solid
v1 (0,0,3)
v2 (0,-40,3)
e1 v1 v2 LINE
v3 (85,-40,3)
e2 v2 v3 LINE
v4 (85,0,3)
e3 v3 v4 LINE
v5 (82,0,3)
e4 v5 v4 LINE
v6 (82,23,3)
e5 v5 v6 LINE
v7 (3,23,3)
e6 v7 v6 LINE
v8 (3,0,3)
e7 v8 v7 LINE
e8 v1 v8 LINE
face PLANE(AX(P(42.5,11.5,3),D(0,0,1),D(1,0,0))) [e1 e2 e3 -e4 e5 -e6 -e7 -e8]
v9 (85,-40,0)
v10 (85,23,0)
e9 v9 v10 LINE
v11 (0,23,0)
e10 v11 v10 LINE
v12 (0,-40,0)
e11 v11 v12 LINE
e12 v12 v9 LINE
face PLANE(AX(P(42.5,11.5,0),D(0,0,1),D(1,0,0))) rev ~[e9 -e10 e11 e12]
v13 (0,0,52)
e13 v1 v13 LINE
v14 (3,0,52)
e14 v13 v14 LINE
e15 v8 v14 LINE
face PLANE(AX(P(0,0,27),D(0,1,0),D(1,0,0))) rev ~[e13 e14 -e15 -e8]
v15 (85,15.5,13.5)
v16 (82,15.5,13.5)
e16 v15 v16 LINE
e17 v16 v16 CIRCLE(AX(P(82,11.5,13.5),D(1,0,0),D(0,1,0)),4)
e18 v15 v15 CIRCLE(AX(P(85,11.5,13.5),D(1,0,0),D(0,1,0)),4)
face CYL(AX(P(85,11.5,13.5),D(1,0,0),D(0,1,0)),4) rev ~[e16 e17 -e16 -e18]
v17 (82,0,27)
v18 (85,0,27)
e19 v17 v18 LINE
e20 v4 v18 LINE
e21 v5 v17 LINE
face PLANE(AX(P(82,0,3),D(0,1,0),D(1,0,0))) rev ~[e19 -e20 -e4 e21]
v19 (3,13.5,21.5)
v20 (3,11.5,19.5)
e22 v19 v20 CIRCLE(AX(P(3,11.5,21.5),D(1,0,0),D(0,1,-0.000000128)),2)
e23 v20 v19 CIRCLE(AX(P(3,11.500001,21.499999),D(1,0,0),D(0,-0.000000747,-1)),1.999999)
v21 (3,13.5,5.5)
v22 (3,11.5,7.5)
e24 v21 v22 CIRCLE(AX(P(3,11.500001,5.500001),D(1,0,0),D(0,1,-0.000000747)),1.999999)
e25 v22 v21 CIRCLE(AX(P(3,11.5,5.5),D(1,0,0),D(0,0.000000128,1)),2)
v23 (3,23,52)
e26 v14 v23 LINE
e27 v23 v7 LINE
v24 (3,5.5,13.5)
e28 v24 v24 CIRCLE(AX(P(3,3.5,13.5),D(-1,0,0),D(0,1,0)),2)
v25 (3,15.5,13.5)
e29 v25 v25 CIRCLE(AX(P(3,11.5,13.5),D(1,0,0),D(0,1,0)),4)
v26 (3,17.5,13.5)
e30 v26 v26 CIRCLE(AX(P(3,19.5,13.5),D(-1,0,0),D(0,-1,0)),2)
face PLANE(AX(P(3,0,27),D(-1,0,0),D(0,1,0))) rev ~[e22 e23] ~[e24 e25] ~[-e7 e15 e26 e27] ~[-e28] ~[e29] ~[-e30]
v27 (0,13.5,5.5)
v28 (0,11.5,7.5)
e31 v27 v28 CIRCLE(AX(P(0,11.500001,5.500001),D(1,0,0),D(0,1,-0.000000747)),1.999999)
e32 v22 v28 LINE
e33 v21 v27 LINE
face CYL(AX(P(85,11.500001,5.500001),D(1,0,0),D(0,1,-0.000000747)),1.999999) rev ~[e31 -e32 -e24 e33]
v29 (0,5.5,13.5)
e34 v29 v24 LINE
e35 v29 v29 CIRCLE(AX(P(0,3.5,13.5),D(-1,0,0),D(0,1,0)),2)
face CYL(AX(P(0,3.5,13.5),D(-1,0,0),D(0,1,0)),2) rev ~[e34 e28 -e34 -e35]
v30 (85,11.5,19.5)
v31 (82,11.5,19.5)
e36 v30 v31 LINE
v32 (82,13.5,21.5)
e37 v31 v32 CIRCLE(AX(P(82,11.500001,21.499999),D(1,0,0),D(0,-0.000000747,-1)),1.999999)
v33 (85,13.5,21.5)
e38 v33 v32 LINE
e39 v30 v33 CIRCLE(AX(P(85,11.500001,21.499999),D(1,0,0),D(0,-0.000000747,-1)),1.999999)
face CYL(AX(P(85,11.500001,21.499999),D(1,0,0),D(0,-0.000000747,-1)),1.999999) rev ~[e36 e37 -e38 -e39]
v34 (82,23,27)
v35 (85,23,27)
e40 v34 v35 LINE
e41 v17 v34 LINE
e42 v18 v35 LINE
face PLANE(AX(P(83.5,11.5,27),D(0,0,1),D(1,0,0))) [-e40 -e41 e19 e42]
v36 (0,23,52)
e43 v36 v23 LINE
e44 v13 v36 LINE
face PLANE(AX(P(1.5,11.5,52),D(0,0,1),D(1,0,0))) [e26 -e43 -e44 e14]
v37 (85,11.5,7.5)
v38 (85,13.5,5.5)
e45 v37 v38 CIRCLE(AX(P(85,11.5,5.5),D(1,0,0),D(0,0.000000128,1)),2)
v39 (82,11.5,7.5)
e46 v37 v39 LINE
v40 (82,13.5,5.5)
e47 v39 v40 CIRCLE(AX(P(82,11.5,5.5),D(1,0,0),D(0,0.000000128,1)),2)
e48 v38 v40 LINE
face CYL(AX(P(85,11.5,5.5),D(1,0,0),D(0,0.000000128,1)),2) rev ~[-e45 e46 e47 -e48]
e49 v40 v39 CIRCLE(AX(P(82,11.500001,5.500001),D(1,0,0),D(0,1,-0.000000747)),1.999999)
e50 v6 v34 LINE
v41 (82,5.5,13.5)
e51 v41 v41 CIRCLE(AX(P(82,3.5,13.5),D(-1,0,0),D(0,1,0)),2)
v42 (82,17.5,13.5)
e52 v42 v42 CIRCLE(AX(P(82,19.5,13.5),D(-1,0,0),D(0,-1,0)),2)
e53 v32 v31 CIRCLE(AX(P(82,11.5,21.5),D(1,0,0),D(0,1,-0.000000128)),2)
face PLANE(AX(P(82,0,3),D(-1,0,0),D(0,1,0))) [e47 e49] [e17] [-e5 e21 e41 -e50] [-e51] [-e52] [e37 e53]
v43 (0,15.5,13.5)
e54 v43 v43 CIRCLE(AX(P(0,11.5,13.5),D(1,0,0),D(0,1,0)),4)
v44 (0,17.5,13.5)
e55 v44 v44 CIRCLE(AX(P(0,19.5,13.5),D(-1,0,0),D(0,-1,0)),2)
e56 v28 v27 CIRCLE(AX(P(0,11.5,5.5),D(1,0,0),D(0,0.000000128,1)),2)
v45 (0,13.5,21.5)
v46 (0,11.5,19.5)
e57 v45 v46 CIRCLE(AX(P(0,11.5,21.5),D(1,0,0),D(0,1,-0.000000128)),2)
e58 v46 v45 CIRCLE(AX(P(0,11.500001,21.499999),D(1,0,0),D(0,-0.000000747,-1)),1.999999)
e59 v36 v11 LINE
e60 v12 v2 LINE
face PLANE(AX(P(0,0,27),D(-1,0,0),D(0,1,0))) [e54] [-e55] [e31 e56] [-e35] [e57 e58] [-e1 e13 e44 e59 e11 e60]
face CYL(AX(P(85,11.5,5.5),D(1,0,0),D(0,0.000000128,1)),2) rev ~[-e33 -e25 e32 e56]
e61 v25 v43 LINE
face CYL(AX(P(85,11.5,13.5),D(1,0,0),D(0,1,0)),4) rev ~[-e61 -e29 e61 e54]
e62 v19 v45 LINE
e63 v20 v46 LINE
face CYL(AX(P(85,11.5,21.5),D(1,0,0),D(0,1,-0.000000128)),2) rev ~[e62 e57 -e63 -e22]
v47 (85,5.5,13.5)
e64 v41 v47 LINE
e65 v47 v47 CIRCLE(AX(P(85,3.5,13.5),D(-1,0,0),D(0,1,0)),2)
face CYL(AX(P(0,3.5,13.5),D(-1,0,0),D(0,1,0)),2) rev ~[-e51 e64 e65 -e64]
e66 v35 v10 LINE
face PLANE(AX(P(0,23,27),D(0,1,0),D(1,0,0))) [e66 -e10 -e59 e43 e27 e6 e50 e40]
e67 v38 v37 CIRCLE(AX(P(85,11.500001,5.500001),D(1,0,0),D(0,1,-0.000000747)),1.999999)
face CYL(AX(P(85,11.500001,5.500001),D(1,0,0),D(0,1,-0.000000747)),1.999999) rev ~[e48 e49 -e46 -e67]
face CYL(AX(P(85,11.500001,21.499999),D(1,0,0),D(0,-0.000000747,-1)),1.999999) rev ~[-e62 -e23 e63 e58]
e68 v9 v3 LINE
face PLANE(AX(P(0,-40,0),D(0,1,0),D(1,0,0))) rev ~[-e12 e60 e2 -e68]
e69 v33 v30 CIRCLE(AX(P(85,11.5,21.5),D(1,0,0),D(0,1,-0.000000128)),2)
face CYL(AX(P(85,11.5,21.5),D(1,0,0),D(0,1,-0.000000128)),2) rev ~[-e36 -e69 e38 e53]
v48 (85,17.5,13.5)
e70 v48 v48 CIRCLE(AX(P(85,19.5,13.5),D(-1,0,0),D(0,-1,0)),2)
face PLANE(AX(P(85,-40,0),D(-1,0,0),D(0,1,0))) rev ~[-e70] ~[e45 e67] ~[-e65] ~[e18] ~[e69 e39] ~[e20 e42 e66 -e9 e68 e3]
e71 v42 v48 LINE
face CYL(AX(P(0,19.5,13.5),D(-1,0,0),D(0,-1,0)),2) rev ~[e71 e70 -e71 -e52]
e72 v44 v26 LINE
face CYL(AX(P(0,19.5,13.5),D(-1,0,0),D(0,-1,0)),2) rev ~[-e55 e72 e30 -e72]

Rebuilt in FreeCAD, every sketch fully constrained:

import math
import FreeCAD as App
import Part
import Sketcher
from FreeCAD import Vector
Q = App.Units.Quantity

doc = App.newDocument("Part")
body = doc.addObject("PartDesign::Body", "Body")

# Sketch on XY plane
sketch1 = body.newObject("Sketcher::SketchObject", "Sketch")
sketch1.AttachmentSupport = (doc.getObject("XY_Plane"), [""])
sketch1.MapMode = "FlatFace"
sketch1.addGeometry(Part.LineSegment(Vector(0, 23, 0), Vector(0, -40, 0)), False)
sketch1.addGeometry(Part.LineSegment(Vector(0, -40, 0), Vector(85, -40, 0)), False)
sketch1.addGeometry(Part.LineSegment(Vector(85, -40, 0), Vector(85, 23, 0)), False)
sketch1.addGeometry(Part.LineSegment(Vector(85, 23, 0), Vector(0, 23, 0)), False)
sketch1.addConstraint(Sketcher.Constraint("Coincident", 0, 2, 1, 1))
sketch1.addConstraint(Sketcher.Constraint("Coincident", 1, 2, 2, 1))
sketch1.addConstraint(Sketcher.Constraint("Coincident", 2, 2, 3, 1))
sketch1.addConstraint(Sketcher.Constraint("Coincident", 3, 2, 0, 1))
sketch1.addConstraint(Sketcher.Constraint("Vertical", 0))
sketch1.addConstraint(Sketcher.Constraint("Horizontal", 1))
sketch1.addConstraint(Sketcher.Constraint("Vertical", 2))
sketch1.addConstraint(Sketcher.Constraint("Horizontal", 3))
sketch1.addConstraint(Sketcher.Constraint("PointOnObject", 0, 2, -2))
sketch1.addConstraint(Sketcher.Constraint("DistanceX", 1, 1, 1, 2, Q("85 mm")))
sketch1.addConstraint(Sketcher.Constraint("DistanceY", 0, 2, 0, 1, Q("63 mm")))
sketch1.addConstraint(Sketcher.Constraint("DistanceY", 0, 2, -1, 1, Q("40 mm")))
pad1 = body.newObject("PartDesign::Pad", "Pad")
pad1.Profile = sketch1
pad1.Length = 3

# Sketch on XY plane
sketch2 = body.newObject("Sketcher::SketchObject", "Sketch001")
sketch2.AttachmentSupport = (doc.getObject("XY_Plane"), [""])
sketch2.MapMode = "FlatFace"
sketch2.AttachmentOffset = App.Placement(Vector(0, 0, 3), App.Rotation())
sketch2.addGeometry(Part.LineSegment(Vector(0, 23, 0), Vector(0, 0, 0)), False)
sketch2.addGeometry(Part.LineSegment(Vector(0, 0, 0), Vector(3, 0, 0)), False)
sketch2.addGeometry(Part.LineSegment(Vector(3, 0, 0), Vector(3, 23, 0)), False)
sketch2.addGeometry(Part.LineSegment(Vector(3, 23, 0), Vector(0, 23, 0)), False)
sketch2.addGeometry(Part.LineSegment(Vector(82, 23, 0), Vector(82, 0, 0)), False)
sketch2.addGeometry(Part.LineSegment(Vector(82, 0, 0), Vector(85, 0, 0)), False)
sketch2.addGeometry(Part.LineSegment(Vector(85, 0, 0), Vector(85, 23, 0)), False)
sketch2.addGeometry(Part.LineSegment(Vector(85, 23, 0), Vector(82, 23, 0)), False)
sketch2.addConstraint(Sketcher.Constraint("Coincident", 0, 2, 1, 1))
sketch2.addConstraint(Sketcher.Constraint("Coincident", 1, 2, 2, 1))
sketch2.addConstraint(Sketcher.Constraint("Coincident", 2, 2, 3, 1))
sketch2.addConstraint(Sketcher.Constraint("Coincident", 3, 2, 0, 1))
sketch2.addConstraint(Sketcher.Constraint("Coincident", 4, 2, 5, 1))
sketch2.addConstraint(Sketcher.Constraint("Coincident", 5, 2, 6, 1))
sketch2.addConstraint(Sketcher.Constraint("Coincident", 6, 2, 7, 1))
sketch2.addConstraint(Sketcher.Constraint("Coincident", 7, 2, 4, 1))
sketch2.addConstraint(Sketcher.Constraint("Vertical", 0))
sketch2.addConstraint(Sketcher.Constraint("Horizontal", 1))
sketch2.addConstraint(Sketcher.Constraint("Vertical", 2))
sketch2.addConstraint(Sketcher.Constraint("Horizontal", 3))
sketch2.addConstraint(Sketcher.Constraint("Vertical", 4))
sketch2.addConstraint(Sketcher.Constraint("Horizontal", 5))
sketch2.addConstraint(Sketcher.Constraint("Vertical", 6))
sketch2.addConstraint(Sketcher.Constraint("Horizontal", 7))
sketch2.addConstraint(Sketcher.Constraint("Coincident", 0, 2, -1, 1))
sketch2.addConstraint(Sketcher.Constraint("PointOnObject", 4, 2, -1))
sketch2.addConstraint(Sketcher.Constraint("Horizontal", 3, 2, 6, 2))
sketch2.addConstraint(Sketcher.Constraint("Equal", 3, 5))
sketch2.addConstraint(Sketcher.Constraint("DistanceX", 1, 1, 1, 2, Q("3 mm")))
sketch2.addConstraint(Sketcher.Constraint("DistanceY", 0, 2, 0, 1, Q("23 mm")))
sketch2.addConstraint(Sketcher.Constraint("DistanceX", -1, 1, 4, 2, Q("82 mm")))
pad2 = body.newObject("PartDesign::Pad", "Pad001")
pad2.Profile = sketch2
pad2.Length = 24

# Sketch on XY plane
sketch3 = body.newObject("Sketcher::SketchObject", "Sketch002")
sketch3.AttachmentSupport = (doc.getObject("XY_Plane"), [""])
sketch3.MapMode = "FlatFace"
sketch3.AttachmentOffset = App.Placement(Vector(0, 0, 27), App.Rotation())
sketch3.addGeometry(Part.LineSegment(Vector(0, 23, 0), Vector(0, 0, 0)), False)
sketch3.addGeometry(Part.LineSegment(Vector(0, 0, 0), Vector(3, 0, 0)), False)
sketch3.addGeometry(Part.LineSegment(Vector(3, 0, 0), Vector(3, 23, 0)), False)
sketch3.addGeometry(Part.LineSegment(Vector(3, 23, 0), Vector(0, 23, 0)), False)
sketch3.addConstraint(Sketcher.Constraint("Coincident", 0, 2, 1, 1))
sketch3.addConstraint(Sketcher.Constraint("Coincident", 1, 2, 2, 1))
sketch3.addConstraint(Sketcher.Constraint("Coincident", 2, 2, 3, 1))
sketch3.addConstraint(Sketcher.Constraint("Coincident", 3, 2, 0, 1))
sketch3.addConstraint(Sketcher.Constraint("Vertical", 0))
sketch3.addConstraint(Sketcher.Constraint("Horizontal", 1))
sketch3.addConstraint(Sketcher.Constraint("Vertical", 2))
sketch3.addConstraint(Sketcher.Constraint("Horizontal", 3))
sketch3.addConstraint(Sketcher.Constraint("Coincident", 0, 2, -1, 1))
sketch3.addConstraint(Sketcher.Constraint("DistanceX", 1, 1, 1, 2, Q("3 mm")))
sketch3.addConstraint(Sketcher.Constraint("DistanceY", 0, 2, 0, 1, Q("23 mm")))
pad3 = body.newObject("PartDesign::Pad", "Pad002")
pad3.Profile = sketch3
pad3.Length = 25

# Sketch on YZ plane
sketch4 = body.newObject("Sketcher::SketchObject", "Sketch003")
sketch4.AttachmentSupport = (doc.getObject("YZ_Plane"), [""])
sketch4.MapMode = "FlatFace"
sketch4.AttachmentOffset = App.Placement(Vector(0, 0, 85), App.Rotation())
sketch4.addGeometry(Part.Circle(Vector(11.5, 13.5, 0), Vector(0, 0, 1), 4), False)
sketch4.addConstraint(Sketcher.Constraint("Diameter", 0, Q("8 mm")))
sketch4.addConstraint(Sketcher.Constraint("DistanceX", -1, 1, 0, 3, Q("11.5 mm")))
sketch4.addConstraint(Sketcher.Constraint("DistanceY", -1, 1, 0, 3, Q("13.5 mm")))
pocket1 = body.newObject("PartDesign::Pocket", "Pocket")
pocket1.Profile = sketch4
pocket1.Length = 200

# Sketch on YZ plane
sketch5 = body.newObject("Sketcher::SketchObject", "Sketch004")
sketch5.AttachmentSupport = (doc.getObject("YZ_Plane"), [""])
sketch5.MapMode = "FlatFace"
sketch5.addGeometry(Part.Circle(Vector(3.5, 13.5, 0), Vector(0, 0, 1), 2), False)
sketch5.addGeometry(Part.Circle(Vector(19.5, 13.5, 0), Vector(0, 0, 1), 2), False)
sketch5.addConstraint(Sketcher.Constraint("Equal", 0, 1))
sketch5.addConstraint(Sketcher.Constraint("Horizontal", 0, 3, 1, 3))
sketch5.addConstraint(Sketcher.Constraint("Diameter", 0, Q("4 mm")))
sketch5.addConstraint(Sketcher.Constraint("DistanceX", 0, 3, 1, 3, Q("16 mm")))
sketch5.addConstraint(Sketcher.Constraint("DistanceX", -1, 1, 0, 3, Q("3.5 mm")))
sketch5.addConstraint(Sketcher.Constraint("DistanceY", -1, 1, 0, 3, Q("13.5 mm")))
pocket2 = body.newObject("PartDesign::Pocket", "Pocket001")
pocket2.Profile = sketch5
pocket2.Length = 250
pocket2.Reversed = True

# Sketch on YZ plane
sketch6 = body.newObject("Sketcher::SketchObject", "Sketch005")
sketch6.AttachmentSupport = (doc.getObject("YZ_Plane"), [""])
sketch6.MapMode = "FlatFace"
sketch6.AttachmentOffset = App.Placement(Vector(0, 0, 85), App.Rotation())
sketch6.addGeometry(Part.ArcOfCircle(Part.Circle(Vector(11.5, 21.5, 0), Vector(0, 0, 1), 2), math.radians(-0.000007), math.radians(270.000007)), False)
sketch6.addGeometry(Part.ArcOfCircle(Part.Circle(Vector(11.500001, 21.499999, 0), Vector(0, 0, 1), 1.999999), math.radians(-90.000043), math.radians(0.000043)), False)
sketch6.addGeometry(Part.ArcOfCircle(Part.Circle(Vector(11.500001, 5.500001, 0), Vector(0, 0, 1), 1.999999), math.radians(-0.000043), math.radians(90.000043)), False)
sketch6.addGeometry(Part.ArcOfCircle(Part.Circle(Vector(11.5, 5.5, 0), Vector(0, 0, 1), 2), math.radians(89.999993), math.radians(360.000007)), False)
sketch6.addConstraint(Sketcher.Constraint("Tangent", 0, 1, 1, 2))
sketch6.addConstraint(Sketcher.Constraint("Coincident", 1, 1, 0, 2))
sketch6.addConstraint(Sketcher.Constraint("Tangent", 2, 1, 3, 2))
sketch6.addConstraint(Sketcher.Constraint("Coincident", 3, 1, 2, 2))
sketch6.addConstraint(Sketcher.Constraint("Equal", 1, 2))
sketch6.addConstraint(Sketcher.Constraint("Horizontal", 1, 3, 0, 1))
sketch6.addConstraint(Sketcher.Constraint("Horizontal", 3, 3, 2, 1))
sketch6.addConstraint(Sketcher.Constraint("Vertical", 1, 3, 2, 3))
sketch6.addConstraint(Sketcher.Constraint("Vertical", 3, 3, 1, 1))
sketch6.addConstraint(Sketcher.Constraint("Vertical", 1, 1, 3, 1))
sketch6.addConstraint(Sketcher.Constraint("Radius", 0, Q("2 mm")))
sketch6.addConstraint(Sketcher.Constraint("DistanceY", 2, 3, 0, 3, Q("15.999999 mm")))
sketch6.addConstraint(Sketcher.Constraint("DistanceX", -1, 1, 0, 3, Q("11.5 mm")))
sketch6.addConstraint(Sketcher.Constraint("DistanceY", -1, 1, 0, 3, Q("21.5 mm")))
pocket3 = body.newObject("PartDesign::Pocket", "Pocket002")
pocket3.Profile = sketch6
pocket3.Length = 250

doc.recompute()
